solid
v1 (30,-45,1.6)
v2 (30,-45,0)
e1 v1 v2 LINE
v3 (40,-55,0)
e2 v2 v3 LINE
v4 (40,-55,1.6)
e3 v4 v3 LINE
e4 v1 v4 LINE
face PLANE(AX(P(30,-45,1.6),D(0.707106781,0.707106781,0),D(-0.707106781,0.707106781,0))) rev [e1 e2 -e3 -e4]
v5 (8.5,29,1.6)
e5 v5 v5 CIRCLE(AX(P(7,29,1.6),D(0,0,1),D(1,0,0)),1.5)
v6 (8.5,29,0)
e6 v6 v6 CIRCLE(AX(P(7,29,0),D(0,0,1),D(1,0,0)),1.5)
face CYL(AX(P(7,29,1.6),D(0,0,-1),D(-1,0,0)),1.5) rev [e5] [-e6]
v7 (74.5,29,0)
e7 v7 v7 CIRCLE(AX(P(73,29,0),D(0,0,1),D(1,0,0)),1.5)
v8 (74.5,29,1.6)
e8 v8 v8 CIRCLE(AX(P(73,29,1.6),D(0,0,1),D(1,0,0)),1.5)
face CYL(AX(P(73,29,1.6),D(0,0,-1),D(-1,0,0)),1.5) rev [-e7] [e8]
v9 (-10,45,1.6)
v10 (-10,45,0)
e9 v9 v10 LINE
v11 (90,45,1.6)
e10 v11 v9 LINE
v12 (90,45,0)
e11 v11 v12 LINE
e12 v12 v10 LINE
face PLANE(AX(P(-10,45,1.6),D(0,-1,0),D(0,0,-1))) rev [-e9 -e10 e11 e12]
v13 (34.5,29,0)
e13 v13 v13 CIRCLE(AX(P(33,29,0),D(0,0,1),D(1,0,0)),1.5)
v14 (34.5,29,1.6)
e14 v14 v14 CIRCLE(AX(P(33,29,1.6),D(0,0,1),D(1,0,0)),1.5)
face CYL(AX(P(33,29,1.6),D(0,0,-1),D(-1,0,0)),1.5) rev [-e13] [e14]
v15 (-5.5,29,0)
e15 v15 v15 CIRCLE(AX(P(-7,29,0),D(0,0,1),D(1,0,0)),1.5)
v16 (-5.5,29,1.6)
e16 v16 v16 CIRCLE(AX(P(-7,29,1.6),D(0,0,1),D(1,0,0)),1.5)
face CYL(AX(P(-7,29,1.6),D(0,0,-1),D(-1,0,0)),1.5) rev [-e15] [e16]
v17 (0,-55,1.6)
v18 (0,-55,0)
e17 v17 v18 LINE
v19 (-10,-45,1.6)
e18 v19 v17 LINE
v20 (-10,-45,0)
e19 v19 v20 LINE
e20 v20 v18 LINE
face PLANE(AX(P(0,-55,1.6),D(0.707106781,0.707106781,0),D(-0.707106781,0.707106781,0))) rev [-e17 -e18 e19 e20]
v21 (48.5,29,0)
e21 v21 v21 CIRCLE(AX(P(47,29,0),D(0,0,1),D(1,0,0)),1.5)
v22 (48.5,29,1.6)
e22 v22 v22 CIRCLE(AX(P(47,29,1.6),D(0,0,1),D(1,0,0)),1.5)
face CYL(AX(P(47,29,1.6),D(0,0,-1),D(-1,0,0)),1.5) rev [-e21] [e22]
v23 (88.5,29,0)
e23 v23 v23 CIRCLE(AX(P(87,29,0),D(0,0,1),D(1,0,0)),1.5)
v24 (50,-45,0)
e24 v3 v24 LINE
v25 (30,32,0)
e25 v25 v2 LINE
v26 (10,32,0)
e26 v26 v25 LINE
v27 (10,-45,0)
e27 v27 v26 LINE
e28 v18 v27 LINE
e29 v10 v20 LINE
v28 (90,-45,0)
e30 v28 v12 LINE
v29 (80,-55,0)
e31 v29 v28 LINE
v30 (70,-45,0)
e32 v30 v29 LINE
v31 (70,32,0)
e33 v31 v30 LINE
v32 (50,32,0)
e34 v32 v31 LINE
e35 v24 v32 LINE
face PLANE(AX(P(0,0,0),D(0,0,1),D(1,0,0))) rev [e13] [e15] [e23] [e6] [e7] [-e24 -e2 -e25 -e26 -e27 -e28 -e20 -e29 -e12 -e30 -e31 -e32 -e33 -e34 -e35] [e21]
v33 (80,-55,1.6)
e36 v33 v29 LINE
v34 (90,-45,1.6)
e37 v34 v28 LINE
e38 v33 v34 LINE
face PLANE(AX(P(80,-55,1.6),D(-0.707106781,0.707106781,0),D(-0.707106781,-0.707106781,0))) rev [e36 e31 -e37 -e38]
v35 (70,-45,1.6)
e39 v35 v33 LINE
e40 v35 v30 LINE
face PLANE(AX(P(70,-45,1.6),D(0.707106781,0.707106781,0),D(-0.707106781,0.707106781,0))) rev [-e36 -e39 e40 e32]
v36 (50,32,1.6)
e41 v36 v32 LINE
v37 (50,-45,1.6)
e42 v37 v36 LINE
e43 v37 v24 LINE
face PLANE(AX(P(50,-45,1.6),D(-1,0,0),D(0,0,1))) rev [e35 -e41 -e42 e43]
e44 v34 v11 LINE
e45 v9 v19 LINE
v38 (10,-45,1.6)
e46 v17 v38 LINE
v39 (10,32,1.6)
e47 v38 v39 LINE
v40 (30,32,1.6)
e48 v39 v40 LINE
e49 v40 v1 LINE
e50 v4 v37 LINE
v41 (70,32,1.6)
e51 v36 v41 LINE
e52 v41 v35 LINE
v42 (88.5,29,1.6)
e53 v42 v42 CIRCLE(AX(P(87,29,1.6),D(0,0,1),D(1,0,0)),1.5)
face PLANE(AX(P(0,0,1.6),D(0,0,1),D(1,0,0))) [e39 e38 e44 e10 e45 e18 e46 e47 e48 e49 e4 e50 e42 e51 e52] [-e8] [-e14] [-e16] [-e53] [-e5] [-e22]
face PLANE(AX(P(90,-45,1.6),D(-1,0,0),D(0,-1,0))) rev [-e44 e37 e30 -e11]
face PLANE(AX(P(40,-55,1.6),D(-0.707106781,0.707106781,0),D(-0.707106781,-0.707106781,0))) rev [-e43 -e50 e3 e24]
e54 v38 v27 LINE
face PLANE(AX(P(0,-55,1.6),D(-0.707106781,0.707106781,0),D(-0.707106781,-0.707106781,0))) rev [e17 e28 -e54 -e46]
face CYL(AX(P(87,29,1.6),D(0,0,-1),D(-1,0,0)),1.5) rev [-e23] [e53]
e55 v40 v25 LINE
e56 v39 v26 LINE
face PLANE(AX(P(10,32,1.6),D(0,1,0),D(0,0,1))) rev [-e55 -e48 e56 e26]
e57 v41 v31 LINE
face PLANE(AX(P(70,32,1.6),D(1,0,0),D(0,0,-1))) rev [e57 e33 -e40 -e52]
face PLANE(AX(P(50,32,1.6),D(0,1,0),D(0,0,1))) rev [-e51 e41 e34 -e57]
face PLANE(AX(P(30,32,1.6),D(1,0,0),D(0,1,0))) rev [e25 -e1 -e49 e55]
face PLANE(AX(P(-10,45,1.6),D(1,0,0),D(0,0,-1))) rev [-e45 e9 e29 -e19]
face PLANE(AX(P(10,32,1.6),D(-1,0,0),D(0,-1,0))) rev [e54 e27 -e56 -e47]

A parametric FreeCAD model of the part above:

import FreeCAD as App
import Part
import Sketcher

V = App.Vector

doc = App.newDocument("Part")
params = doc.addObject("Spreadsheet::Sheet", "Params")
for row, (alias, value) in enumerate([
    ("sketch1_diameter", "3 mm"),
    ("sketch1_width", "20 mm"),
    ("sketch1_width2", "100 mm"),
    ("sketch1_height", "77 mm"),
    ("sketch1_height2", "90 mm"),
    ("pad1_length", "1.6 mm"),
], start=1):
    params.set(f"A{row}", alias)
    params.set(f"B{row}", "=" + value)
    params.setAlias(f"B{row}", alias)

body = doc.addObject("PartDesign::Body", "Body")

# Sketch on XY plane
sketch1 = doc.addObject("Sketcher::SketchObject", "Sketch")
body.addObject(sketch1)
sketch1.AttachmentSupport = (doc.XY_Plane, [""])
sketch1.MapMode = "FlatFace"
sketch1.addGeometry(Part.LineSegment(V(-10, -45, 0), V(0, -55, 0)), False)
sketch1.addGeometry(Part.LineSegment(V(0, -55, 0), V(10, -45, 0)), False)
sketch1.addGeometry(Part.LineSegment(V(10, -45, 0), V(10, 32, 0)), False)
sketch1.addGeometry(Part.LineSegment(V(10, 32, 0), V(30, 32, 0)), False)
sketch1.addGeometry(Part.LineSegment(V(30, 32, 0), V(30, -45, 0)), False)
sketch1.addGeometry(Part.LineSegment(V(30, -45, 0), V(40, -55, 0)), False)
sketch1.addGeometry(Part.LineSegment(V(40, -55, 0), V(50, -45, 0)), False)
sketch1.addGeometry(Part.LineSegment(V(50, -45, 0), V(50, 32, 0)), False)
sketch1.addGeometry(Part.LineSegment(V(50, 32, 0), V(70, 32, 0)), False)
sketch1.addGeometry(Part.LineSegment(V(70, 32, 0), V(70, -45, 0)), False)
sketch1.addGeometry(Part.LineSegment(V(70, -45, 0), V(80, -55, 0)), False)
sketch1.addGeometry(Part.LineSegment(V(80, -55, 0), V(90, -45, 0)), False)
sketch1.addGeometry(Part.LineSegment(V(90, -45, 0), V(90, 45, 0)), False)
sketch1.addGeometry(Part.LineSegment(V(90, 45, 0), V(-10, 45, 0)), False)
sketch1.addGeometry(Part.LineSegment(V(-10, 45, 0), V(-10, -45, 0)), False)
sketch1.addGeometry(Part.Circle(V(87, 29, 0), V(0, 0, 1), 1.5), False)
sketch1.addGeometry(Part.Circle(V(73, 29, 0), V(0, 0, 1), 1.5), False)
sketch1.addGeometry(Part.Circle(V(47, 29, 0), V(0, 0, 1), 1.5), False)
sketch1.addGeometry(Part.Circle(V(33, 29, 0), V(0, 0, 1), 1.5), False)
sketch1.addGeometry(Part.Circle(V(7, 29, 0), V(0, 0, 1), 1.5), False)
sketch1.addGeometry(Part.Circle(V(-7, 29, 0), V(0, 0, 1), 1.5), False)
sketch1.addConstraint(Sketcher.Constraint("Coincident", 0, 2, 1, 1))
sketch1.addConstraint(Sketcher.Constraint("Coincident", 1, 2, 2, 1))
sketch1.addConstraint(Sketcher.Constraint("Coincident", 2, 2, 3, 1))
sketch1.addConstraint(Sketcher.Constraint("Coincident", 3, 2, 4, 1))
sketch1.addConstraint(Sketcher.Constraint("Coincident", 4, 2, 5, 1))
sketch1.addConstraint(Sketcher.Constraint("Coincident", 5, 2, 6, 1))
sketch1.addConstraint(Sketcher.Constraint("Coincident", 6, 2, 7, 1))
sketch1.addConstraint(Sketcher.Constraint("Coincident", 7, 2, 8, 1))
sketch1.addConstraint(Sketcher.Constraint("Coincident", 8, 2, 9, 1))
sketch1.addConstraint(Sketcher.Constraint("Coincident", 9, 2, 10, 1))
sketch1.addConstraint(Sketcher.Constraint("Coincident", 10, 2, 11, 1))
sketch1.addConstraint(Sketcher.Constraint("Coincident", 11, 2, 12, 1))
sketch1.addConstraint(Sketcher.Constraint("Coincident", 12, 2, 13, 1))
sketch1.addConstraint(Sketcher.Constraint("Coincident", 13, 2, 14, 1))
sketch1.addConstraint(Sketcher.Constraint("Coincident", 14, 2, 0, 1))
sketch1.addConstraint(Sketcher.Constraint("Vertical", 2))
sketch1.addConstraint(Sketcher.Constraint("Horizontal", 3))
sketch1.addConstraint(Sketcher.Constraint("Vertical", 4))
sketch1.addConstraint(Sketcher.Constraint("Vertical", 7))
sketch1.addConstraint(Sketcher.Constraint("Horizontal", 8))
sketch1.addConstraint(Sketcher.Constraint("Vertical", 9))
sketch1.addConstraint(Sketcher.Constraint("Vertical", 12))
sketch1.addConstraint(Sketcher.Constraint("Horizontal", 13))
sketch1.addConstraint(Sketcher.Constraint("Vertical", 14))
sketch1.addConstraint(Sketcher.Constraint("Equal", 15, 16))
sketch1.addConstraint(Sketcher.Constraint("Equal", 16, 17))
sketch1.addConstraint(Sketcher.Constraint("Equal", 17, 18))
sketch1.addConstraint(Sketcher.Constraint("Equal", 18, 19))
sketch1.addConstraint(Sketcher.Constraint("Equal", 19, 20))
sketch1.addConstraint(Sketcher.Constraint("Symmetric", 1, 2, 13, 2, -1, 1))
sketch1.addConstraint(Sketcher.Constraint("Symmetric", 19, 3, 20, 3, -2))
sketch1.addConstraint(Sketcher.Constraint("PointOnObject", 0, 2, -2))
sketch1.addConstraint(Sketcher.Constraint("Perpendicular", 0, 1))
sketch1.addConstraint(Sketcher.Constraint("Perpendicular", 1, 5))
sketch1.addConstraint(Sketcher.Constraint("Perpendicular", 5, 6))
sketch1.addConstraint(Sketcher.Constraint("Perpendicular", 6, 10))
sketch1.addConstraint(Sketcher.Constraint("Perpendicular", 10, 11))
sketch1.addConstraint(Sketcher.Constraint("Horizontal", 15, 3, 16, 3))
sketch1.addConstraint(Sketcher.Constraint("Horizontal", 16, 3, 17, 3))
sketch1.addConstraint(Sketcher.Constraint("Horizontal", 17, 3, 18, 3))
sketch1.addConstraint(Sketcher.Constraint("Horizontal", 18, 3, 19, 3))
sketch1.addConstraint(Sketcher.Constraint("Horizontal", 1, 2, 4, 2))
sketch1.addConstraint(Sketcher.Constraint("Horizontal", 0, 2, 5, 2))
sketch1.addConstraint(Sketcher.Constraint("Horizontal", 4, 2, 6, 2))
sketch1.addConstraint(Sketcher.Constraint("Horizontal", 3, 2, 7, 2))
sketch1.addConstraint(Sketcher.Constraint("Horizontal", 6, 2, 9, 2))
sketch1.addConstraint(Sketcher.Constraint("Horizontal", 5, 2, 10, 2))
sketch1.addConstraint(Sketcher.Constraint("Horizontal", 9, 2, 11, 2))
sketch1.addConstraint(Sketcher.Constraint("Horizontal", 11, 2, 14, 2))
sketch1.addConstraint(Sketcher.Constraint("Equal", 3, 8))
sketch1.addConstraint(Sketcher.Constraint("Diameter", 15, 3.0))
sketch1.addConstraint(Sketcher.Constraint("DistanceX", 3, 1, 3, 2, 20.0))
sketch1.addConstraint(Sketcher.Constraint("DistanceX", 13, 2, 13, 1, 100.0))
sketch1.addConstraint(Sketcher.Constraint("DistanceY", 2, 1, 2, 2, 77.0))
sketch1.addConstraint(Sketcher.Constraint("DistanceY", 12, 1, 12, 2, 90.0))
sketch1.addConstraint(Sketcher.Constraint("DistanceX", -1, 1, 15, 3, 87.0))
sketch1.addConstraint(Sketcher.Constraint("DistanceY", -1, 1, 15, 3, 29.0))
sketch1.addConstraint(Sketcher.Constraint("DistanceX", -1, 1, 16, 3, 73.0))
sketch1.addConstraint(Sketcher.Constraint("DistanceX", -1, 1, 17, 3, 47.0))
sketch1.addConstraint(Sketcher.Constraint("DistanceX", -1, 1, 18, 3, 33.0))
sketch1.addConstraint(Sketcher.Constraint("DistanceX", -1, 1, 19, 3, 7.0))
sketch1.setExpression("Constraints[50]", "Params.sketch1_diameter")
sketch1.setExpression("Constraints[51]", "Params.sketch1_width")
sketch1.setExpression("Constraints[52]", "Params.sketch1_width2")
sketch1.setExpression("Constraints[53]", "Params.sketch1_height")
sketch1.setExpression("Constraints[54]", "Params.sketch1_height2")
pad1 = doc.addObject("PartDesign::Pad", "Pad")
body.addObject(pad1)
pad1.Profile = sketch1
pad1.setExpression("Length", "Params.pad1_length")

doc.recompute()
